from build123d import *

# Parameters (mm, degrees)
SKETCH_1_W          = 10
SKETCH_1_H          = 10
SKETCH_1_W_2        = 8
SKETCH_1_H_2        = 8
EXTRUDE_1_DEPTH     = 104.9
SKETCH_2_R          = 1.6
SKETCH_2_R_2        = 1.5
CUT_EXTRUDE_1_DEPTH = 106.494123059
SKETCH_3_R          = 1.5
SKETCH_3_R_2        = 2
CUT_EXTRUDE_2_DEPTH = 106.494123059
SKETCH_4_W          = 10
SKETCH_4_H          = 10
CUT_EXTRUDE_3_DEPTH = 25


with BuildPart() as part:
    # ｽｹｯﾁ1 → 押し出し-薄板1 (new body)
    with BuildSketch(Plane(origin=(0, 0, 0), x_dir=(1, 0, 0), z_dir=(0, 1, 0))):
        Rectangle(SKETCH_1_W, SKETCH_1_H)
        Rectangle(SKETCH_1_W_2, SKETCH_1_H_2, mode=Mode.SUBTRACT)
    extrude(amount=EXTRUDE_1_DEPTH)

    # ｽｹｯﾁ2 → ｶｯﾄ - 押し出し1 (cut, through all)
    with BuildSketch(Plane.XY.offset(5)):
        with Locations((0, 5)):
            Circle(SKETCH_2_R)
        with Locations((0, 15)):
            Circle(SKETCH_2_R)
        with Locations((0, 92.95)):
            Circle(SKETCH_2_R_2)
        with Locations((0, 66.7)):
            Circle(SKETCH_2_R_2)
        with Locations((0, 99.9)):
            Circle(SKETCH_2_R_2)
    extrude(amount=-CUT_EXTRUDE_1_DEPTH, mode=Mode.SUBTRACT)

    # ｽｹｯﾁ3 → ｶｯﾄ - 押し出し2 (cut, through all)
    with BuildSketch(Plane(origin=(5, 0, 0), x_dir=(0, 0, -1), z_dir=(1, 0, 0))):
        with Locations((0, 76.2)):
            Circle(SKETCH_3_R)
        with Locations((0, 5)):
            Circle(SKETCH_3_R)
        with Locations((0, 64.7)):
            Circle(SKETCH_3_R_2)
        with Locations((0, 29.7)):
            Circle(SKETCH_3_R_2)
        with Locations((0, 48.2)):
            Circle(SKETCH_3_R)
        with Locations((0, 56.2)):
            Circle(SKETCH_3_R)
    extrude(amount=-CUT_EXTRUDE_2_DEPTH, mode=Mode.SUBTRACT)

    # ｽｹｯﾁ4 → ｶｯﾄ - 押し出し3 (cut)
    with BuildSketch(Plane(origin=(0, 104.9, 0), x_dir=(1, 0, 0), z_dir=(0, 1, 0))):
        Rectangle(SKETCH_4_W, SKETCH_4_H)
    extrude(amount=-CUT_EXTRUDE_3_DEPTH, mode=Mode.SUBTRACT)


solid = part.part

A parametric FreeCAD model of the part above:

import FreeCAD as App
import Part
import Sketcher
from FreeCAD import Vector

doc = App.newDocument("Part")
params = doc.addObject("Spreadsheet::Sheet", "Params")
for row, (alias, value) in enumerate([
    ("sketch1_width", "10 mm"),
    ("sketch1_width2", "8 mm"),
    ("pad1_length", "104.9 mm"),
    ("sketch2_diameter", "3 mm"),
    ("sketch2_diameter2", "3.2 mm"),
    ("sketch3_diameter", "3 mm"),
    ("sketch3_diameter2", "4 mm"),
    ("sketch4_width", "10 mm"),
    ("pocket3_length", "25 mm"),
], start=1):
    params.set(f"A{row}", alias)
    params.set(f"B{row}", "=" + value)
    params.setAlias(f"B{row}", alias)

body = doc.addObject("PartDesign::Body", "Body")

sketch1 = body.newObject("Sketcher::SketchObject", "Sketch")
sketch1.AttachmentSupport = (doc.getObject("XZ_Plane"), [""])
sketch1.MapMode = "FlatFace"
sketch1.addGeometry([
    Part.LineSegment(Vector(-5, -5, 0), Vector(-5, 5, 0)),
    Part.LineSegment(Vector(-5, 5, 0), Vector(5, 5, 0)),
    Part.LineSegment(Vector(5, 5, 0), Vector(5, -5, 0)),
    Part.LineSegment(Vector(5, -5, 0), Vector(-5, -5, 0)),
    Part.LineSegment(Vector(4, 4, 0), Vector(-4, 4, 0)),
    Part.LineSegment(Vector(-4, 4, 0), Vector(-4, -4, 0)),
    Part.LineSegment(Vector(-4, -4, 0), Vector(4, -4, 0)),
    Part.LineSegment(Vector(4, -4, 0), Vector(4, 4, 0)),
], False)
sketch1.addConstraint([
    Sketcher.Constraint("Coincident", 0, 2, 1, 1),
    Sketcher.Constraint("Coincident", 1, 2, 2, 1),
    Sketcher.Constraint("Coincident", 2, 2, 3, 1),
    Sketcher.Constraint("Coincident", 3, 2, 0, 1),
    Sketcher.Constraint("Coincident", 4, 2, 5, 1),
    Sketcher.Constraint("Coincident", 5, 2, 6, 1),
    Sketcher.Constraint("Coincident", 6, 2, 7, 1),
    Sketcher.Constraint("Coincident", 7, 2, 4, 1),
    Sketcher.Constraint("Vertical", 0),
    Sketcher.Constraint("Horizontal", 1),
    Sketcher.Constraint("Vertical", 2),
    Sketcher.Constraint("Horizontal", 3),
    Sketcher.Constraint("Horizontal", 4),
    Sketcher.Constraint("Vertical", 5),
    Sketcher.Constraint("Horizontal", 6),
    Sketcher.Constraint("Vertical", 7),
    Sketcher.Constraint("Symmetric", 0, 2, 2, 2, -1, 1),
    Sketcher.Constraint("Symmetric", 4, 2, 6, 2, -1, 1),
    Sketcher.Constraint("Equal", 3, 0),
    Sketcher.Constraint("Equal", 6, 5),
    Sketcher.Constraint("DistanceX", 1, 1, 1, 2, 10.0),
    Sketcher.Constraint("DistanceX", 4, 2, 4, 1, 8.0),
])
sketch1.setExpression("Constraints[20]", "Params.sketch1_width")
sketch1.setExpression("Constraints[21]", "Params.sketch1_width2")
pad1 = body.newObject("PartDesign::Pad", "Pad")
pad1.Profile = sketch1
pad1.setExpression("Length", "Params.pad1_length")
pad1.Reversed = True

sketch2 = body.newObject("Sketcher::SketchObject", "Sketch001")
sketch2.AttachmentSupport = (doc.getObject("XY_Plane"), [""])
sketch2.MapMode = "FlatFace"
sketch2.AttachmentOffset = App.Placement(Vector(0, 0, 5), App.Rotation())
sketch2.addGeometry([
    Part.Circle(Vector(0, 5, 0), Vector(0, 0, 1), 1.6),
    Part.Circle(Vector(0, 15, 0), Vector(0, 0, 1), 1.6),
    Part.Circle(Vector(0, 93, 0), Vector(0, 0, 1), 1.5),
    Part.Circle(Vector(0, 66.7, 0), Vector(0, 0, 1), 1.5),
    Part.Circle(Vector(0, 99.9, 0), Vector(0, 0, 1), 1.5),
], False)
sketch2.addConstraint([
    Sketcher.Constraint("Equal", 0, 1),
    Sketcher.Constraint("Equal", 2, 3),
    Sketcher.Constraint("Equal", 3, 4),
    Sketcher.Constraint("PointOnObject", 0, 3, -2),
    Sketcher.Constraint("PointOnObject", 1, 3, -2),
    Sketcher.Constraint("PointOnObject", 2, 3, -2),
    Sketcher.Constraint("PointOnObject", 3, 3, -2),
    Sketcher.Constraint("PointOnObject", 4, 3, -2),
    Sketcher.Constraint("Diameter", 2, 3.0),
    Sketcher.Constraint("Diameter", 0, 3.2),
    Sketcher.Constraint("DistanceY", -1, 1, 0, 3, 5.0),
    Sketcher.Constraint("DistanceY", -1, 1, 1, 3, 15.0),
    Sketcher.Constraint("DistanceY", -1, 1, 3, 3, 66.7),
    Sketcher.Constraint("DistanceY", -1, 1, 4, 3, 99.9),
    Sketcher.Constraint("DistanceY", -1, 1, 2, 3, 92.95),
])
sketch2.setExpression("Constraints[8]", "Params.sketch2_diameter")
sketch2.setExpression("Constraints[9]", "Params.sketch2_diameter2")
pocket1 = body.newObject("PartDesign::Pocket", "Pocket")
pocket1.Profile = sketch2
pocket1.Type = "ThroughAll"

sketch3 = body.newObject("Sketcher::SketchObject", "Sketch002")
sketch3.AttachmentSupport = (doc.getObject("YZ_Plane"), [""])
sketch3.MapMode = "FlatFace"
sketch3.AttachmentOffset = App.Placement(Vector(0, 0, 5), App.Rotation())
sketch3.addGeometry([
    Part.Circle(Vector(76.2, 0, 0), Vector(0, 0, 1), 1.5),
    Part.Circle(Vector(5, 0, 0), Vector(0, 0, 1), 1.5),
    Part.Circle(Vector(64.7, 0, 0), Vector(0, 0, 1), 2),
    Part.Circle(Vector(29.7, 0, 0), Vector(0, 0, 1), 2),
    Part.Circle(Vector(48.2, 0, 0), Vector(0, 0, 1), 1.5),
    Part.Circle(Vector(56.2, 0, 0), Vector(0, 0, 1), 1.5),
], False)
sketch3.addConstraint([
    Sketcher.Constraint("Equal", 0, 1),
    Sketcher.Constraint("Equal", 2, 3),
    Sketcher.Constraint("Equal", 1, 4),
    Sketcher.Constraint("Equal", 4, 5),
    Sketcher.Constraint("PointOnObject", 0, 3, -1),
    Sketcher.Constraint("PointOnObject", 1, 3, -1),
    Sketcher.Constraint("PointOnObject", 2, 3, -1),
    Sketcher.Constraint("PointOnObject", 3, 3, -1),
    Sketcher.Constraint("PointOnObject", 4, 3, -1),
    Sketcher.Constraint("PointOnObject", 5, 3, -1),
    Sketcher.Constraint("Diameter", 0, 3.0),
    Sketcher.Constraint("Diameter", 2, 4.0),
    Sketcher.Constraint("DistanceX", -1, 1, 1, 3, 5.0),
    Sketcher.Constraint("DistanceX", 3, 3, 2, 3, 35.0),
    Sketcher.Constraint("DistanceX", 4, 3, 0, 3, 28.0),
    Sketcher.Constraint("DistanceX", 4, 3, 5, 3, 8.0),
    Sketcher.Constraint("DistanceX", -1, 1, 0, 3, 76.2),
    Sketcher.Constraint("DistanceX", -1, 1, 2, 3, 64.7),
])
sketch3.setExpression("Constraints[10]", "Params.sketch3_diameter")
sketch3.setExpression("Constraints[11]", "Params.sketch3_diameter2")
pocket2 = body.newObject("PartDesign::Pocket", "Pocket001")
pocket2.Profile = sketch3
pocket2.Type = "ThroughAll"

sketch4 = body.newObject("Sketcher::SketchObject", "Sketch003")
sketch4.AttachmentSupport = (doc.getObject("XZ_Plane"), [""])
sketch4.MapMode = "FlatFace"
sketch4.AttachmentOffset = App.Placement(Vector(0, 0, -104.9), App.Rotation())
sketch4.addGeometry([
    Part.LineSegment(Vector(-5, -5, 0), Vector(-5, 5, 0)),
    Part.LineSegment(Vector(-5, 5, 0), Vector(5, 5, 0)),
    Part.LineSegment(Vector(5, 5, 0), Vector(5, -5, 0)),
    Part.LineSegment(Vector(5, -5, 0), Vector(-5, -5, 0)),
], False)
sketch4.addConstraint([
    Sketcher.Constraint("Coincident", 0, 2, 1, 1),
    Sketcher.Constraint("Coincident", 1, 2, 2, 1),
    Sketcher.Constraint("Coincident", 2, 2, 3, 1),
    Sketcher.Constraint("Coincident", 3, 2, 0, 1),
    Sketcher.Constraint("Vertical", 0),
    Sketcher.Constraint("Horizontal", 1),
    Sketcher.Constraint("Vertical", 2),
    Sketcher.Constraint("Horizontal", 3),
    Sketcher.Constraint("Symmetric", 0, 2, 2, 2, -1, 1),
    Sketcher.Constraint("Equal", 3, 0),
    Sketcher.Constraint("DistanceX", 1, 1, 1, 2, 10.0),
])
sketch4.setExpression("Constraints[10]", "Params.sketch4_width")
pocket3 = body.newObject("PartDesign::Pocket", "Pocket002")
pocket3.Profile = sketch4
pocket3.setExpression("Length", "Params.pocket3_length")
pocket3.Reversed = True

doc.recompute()
